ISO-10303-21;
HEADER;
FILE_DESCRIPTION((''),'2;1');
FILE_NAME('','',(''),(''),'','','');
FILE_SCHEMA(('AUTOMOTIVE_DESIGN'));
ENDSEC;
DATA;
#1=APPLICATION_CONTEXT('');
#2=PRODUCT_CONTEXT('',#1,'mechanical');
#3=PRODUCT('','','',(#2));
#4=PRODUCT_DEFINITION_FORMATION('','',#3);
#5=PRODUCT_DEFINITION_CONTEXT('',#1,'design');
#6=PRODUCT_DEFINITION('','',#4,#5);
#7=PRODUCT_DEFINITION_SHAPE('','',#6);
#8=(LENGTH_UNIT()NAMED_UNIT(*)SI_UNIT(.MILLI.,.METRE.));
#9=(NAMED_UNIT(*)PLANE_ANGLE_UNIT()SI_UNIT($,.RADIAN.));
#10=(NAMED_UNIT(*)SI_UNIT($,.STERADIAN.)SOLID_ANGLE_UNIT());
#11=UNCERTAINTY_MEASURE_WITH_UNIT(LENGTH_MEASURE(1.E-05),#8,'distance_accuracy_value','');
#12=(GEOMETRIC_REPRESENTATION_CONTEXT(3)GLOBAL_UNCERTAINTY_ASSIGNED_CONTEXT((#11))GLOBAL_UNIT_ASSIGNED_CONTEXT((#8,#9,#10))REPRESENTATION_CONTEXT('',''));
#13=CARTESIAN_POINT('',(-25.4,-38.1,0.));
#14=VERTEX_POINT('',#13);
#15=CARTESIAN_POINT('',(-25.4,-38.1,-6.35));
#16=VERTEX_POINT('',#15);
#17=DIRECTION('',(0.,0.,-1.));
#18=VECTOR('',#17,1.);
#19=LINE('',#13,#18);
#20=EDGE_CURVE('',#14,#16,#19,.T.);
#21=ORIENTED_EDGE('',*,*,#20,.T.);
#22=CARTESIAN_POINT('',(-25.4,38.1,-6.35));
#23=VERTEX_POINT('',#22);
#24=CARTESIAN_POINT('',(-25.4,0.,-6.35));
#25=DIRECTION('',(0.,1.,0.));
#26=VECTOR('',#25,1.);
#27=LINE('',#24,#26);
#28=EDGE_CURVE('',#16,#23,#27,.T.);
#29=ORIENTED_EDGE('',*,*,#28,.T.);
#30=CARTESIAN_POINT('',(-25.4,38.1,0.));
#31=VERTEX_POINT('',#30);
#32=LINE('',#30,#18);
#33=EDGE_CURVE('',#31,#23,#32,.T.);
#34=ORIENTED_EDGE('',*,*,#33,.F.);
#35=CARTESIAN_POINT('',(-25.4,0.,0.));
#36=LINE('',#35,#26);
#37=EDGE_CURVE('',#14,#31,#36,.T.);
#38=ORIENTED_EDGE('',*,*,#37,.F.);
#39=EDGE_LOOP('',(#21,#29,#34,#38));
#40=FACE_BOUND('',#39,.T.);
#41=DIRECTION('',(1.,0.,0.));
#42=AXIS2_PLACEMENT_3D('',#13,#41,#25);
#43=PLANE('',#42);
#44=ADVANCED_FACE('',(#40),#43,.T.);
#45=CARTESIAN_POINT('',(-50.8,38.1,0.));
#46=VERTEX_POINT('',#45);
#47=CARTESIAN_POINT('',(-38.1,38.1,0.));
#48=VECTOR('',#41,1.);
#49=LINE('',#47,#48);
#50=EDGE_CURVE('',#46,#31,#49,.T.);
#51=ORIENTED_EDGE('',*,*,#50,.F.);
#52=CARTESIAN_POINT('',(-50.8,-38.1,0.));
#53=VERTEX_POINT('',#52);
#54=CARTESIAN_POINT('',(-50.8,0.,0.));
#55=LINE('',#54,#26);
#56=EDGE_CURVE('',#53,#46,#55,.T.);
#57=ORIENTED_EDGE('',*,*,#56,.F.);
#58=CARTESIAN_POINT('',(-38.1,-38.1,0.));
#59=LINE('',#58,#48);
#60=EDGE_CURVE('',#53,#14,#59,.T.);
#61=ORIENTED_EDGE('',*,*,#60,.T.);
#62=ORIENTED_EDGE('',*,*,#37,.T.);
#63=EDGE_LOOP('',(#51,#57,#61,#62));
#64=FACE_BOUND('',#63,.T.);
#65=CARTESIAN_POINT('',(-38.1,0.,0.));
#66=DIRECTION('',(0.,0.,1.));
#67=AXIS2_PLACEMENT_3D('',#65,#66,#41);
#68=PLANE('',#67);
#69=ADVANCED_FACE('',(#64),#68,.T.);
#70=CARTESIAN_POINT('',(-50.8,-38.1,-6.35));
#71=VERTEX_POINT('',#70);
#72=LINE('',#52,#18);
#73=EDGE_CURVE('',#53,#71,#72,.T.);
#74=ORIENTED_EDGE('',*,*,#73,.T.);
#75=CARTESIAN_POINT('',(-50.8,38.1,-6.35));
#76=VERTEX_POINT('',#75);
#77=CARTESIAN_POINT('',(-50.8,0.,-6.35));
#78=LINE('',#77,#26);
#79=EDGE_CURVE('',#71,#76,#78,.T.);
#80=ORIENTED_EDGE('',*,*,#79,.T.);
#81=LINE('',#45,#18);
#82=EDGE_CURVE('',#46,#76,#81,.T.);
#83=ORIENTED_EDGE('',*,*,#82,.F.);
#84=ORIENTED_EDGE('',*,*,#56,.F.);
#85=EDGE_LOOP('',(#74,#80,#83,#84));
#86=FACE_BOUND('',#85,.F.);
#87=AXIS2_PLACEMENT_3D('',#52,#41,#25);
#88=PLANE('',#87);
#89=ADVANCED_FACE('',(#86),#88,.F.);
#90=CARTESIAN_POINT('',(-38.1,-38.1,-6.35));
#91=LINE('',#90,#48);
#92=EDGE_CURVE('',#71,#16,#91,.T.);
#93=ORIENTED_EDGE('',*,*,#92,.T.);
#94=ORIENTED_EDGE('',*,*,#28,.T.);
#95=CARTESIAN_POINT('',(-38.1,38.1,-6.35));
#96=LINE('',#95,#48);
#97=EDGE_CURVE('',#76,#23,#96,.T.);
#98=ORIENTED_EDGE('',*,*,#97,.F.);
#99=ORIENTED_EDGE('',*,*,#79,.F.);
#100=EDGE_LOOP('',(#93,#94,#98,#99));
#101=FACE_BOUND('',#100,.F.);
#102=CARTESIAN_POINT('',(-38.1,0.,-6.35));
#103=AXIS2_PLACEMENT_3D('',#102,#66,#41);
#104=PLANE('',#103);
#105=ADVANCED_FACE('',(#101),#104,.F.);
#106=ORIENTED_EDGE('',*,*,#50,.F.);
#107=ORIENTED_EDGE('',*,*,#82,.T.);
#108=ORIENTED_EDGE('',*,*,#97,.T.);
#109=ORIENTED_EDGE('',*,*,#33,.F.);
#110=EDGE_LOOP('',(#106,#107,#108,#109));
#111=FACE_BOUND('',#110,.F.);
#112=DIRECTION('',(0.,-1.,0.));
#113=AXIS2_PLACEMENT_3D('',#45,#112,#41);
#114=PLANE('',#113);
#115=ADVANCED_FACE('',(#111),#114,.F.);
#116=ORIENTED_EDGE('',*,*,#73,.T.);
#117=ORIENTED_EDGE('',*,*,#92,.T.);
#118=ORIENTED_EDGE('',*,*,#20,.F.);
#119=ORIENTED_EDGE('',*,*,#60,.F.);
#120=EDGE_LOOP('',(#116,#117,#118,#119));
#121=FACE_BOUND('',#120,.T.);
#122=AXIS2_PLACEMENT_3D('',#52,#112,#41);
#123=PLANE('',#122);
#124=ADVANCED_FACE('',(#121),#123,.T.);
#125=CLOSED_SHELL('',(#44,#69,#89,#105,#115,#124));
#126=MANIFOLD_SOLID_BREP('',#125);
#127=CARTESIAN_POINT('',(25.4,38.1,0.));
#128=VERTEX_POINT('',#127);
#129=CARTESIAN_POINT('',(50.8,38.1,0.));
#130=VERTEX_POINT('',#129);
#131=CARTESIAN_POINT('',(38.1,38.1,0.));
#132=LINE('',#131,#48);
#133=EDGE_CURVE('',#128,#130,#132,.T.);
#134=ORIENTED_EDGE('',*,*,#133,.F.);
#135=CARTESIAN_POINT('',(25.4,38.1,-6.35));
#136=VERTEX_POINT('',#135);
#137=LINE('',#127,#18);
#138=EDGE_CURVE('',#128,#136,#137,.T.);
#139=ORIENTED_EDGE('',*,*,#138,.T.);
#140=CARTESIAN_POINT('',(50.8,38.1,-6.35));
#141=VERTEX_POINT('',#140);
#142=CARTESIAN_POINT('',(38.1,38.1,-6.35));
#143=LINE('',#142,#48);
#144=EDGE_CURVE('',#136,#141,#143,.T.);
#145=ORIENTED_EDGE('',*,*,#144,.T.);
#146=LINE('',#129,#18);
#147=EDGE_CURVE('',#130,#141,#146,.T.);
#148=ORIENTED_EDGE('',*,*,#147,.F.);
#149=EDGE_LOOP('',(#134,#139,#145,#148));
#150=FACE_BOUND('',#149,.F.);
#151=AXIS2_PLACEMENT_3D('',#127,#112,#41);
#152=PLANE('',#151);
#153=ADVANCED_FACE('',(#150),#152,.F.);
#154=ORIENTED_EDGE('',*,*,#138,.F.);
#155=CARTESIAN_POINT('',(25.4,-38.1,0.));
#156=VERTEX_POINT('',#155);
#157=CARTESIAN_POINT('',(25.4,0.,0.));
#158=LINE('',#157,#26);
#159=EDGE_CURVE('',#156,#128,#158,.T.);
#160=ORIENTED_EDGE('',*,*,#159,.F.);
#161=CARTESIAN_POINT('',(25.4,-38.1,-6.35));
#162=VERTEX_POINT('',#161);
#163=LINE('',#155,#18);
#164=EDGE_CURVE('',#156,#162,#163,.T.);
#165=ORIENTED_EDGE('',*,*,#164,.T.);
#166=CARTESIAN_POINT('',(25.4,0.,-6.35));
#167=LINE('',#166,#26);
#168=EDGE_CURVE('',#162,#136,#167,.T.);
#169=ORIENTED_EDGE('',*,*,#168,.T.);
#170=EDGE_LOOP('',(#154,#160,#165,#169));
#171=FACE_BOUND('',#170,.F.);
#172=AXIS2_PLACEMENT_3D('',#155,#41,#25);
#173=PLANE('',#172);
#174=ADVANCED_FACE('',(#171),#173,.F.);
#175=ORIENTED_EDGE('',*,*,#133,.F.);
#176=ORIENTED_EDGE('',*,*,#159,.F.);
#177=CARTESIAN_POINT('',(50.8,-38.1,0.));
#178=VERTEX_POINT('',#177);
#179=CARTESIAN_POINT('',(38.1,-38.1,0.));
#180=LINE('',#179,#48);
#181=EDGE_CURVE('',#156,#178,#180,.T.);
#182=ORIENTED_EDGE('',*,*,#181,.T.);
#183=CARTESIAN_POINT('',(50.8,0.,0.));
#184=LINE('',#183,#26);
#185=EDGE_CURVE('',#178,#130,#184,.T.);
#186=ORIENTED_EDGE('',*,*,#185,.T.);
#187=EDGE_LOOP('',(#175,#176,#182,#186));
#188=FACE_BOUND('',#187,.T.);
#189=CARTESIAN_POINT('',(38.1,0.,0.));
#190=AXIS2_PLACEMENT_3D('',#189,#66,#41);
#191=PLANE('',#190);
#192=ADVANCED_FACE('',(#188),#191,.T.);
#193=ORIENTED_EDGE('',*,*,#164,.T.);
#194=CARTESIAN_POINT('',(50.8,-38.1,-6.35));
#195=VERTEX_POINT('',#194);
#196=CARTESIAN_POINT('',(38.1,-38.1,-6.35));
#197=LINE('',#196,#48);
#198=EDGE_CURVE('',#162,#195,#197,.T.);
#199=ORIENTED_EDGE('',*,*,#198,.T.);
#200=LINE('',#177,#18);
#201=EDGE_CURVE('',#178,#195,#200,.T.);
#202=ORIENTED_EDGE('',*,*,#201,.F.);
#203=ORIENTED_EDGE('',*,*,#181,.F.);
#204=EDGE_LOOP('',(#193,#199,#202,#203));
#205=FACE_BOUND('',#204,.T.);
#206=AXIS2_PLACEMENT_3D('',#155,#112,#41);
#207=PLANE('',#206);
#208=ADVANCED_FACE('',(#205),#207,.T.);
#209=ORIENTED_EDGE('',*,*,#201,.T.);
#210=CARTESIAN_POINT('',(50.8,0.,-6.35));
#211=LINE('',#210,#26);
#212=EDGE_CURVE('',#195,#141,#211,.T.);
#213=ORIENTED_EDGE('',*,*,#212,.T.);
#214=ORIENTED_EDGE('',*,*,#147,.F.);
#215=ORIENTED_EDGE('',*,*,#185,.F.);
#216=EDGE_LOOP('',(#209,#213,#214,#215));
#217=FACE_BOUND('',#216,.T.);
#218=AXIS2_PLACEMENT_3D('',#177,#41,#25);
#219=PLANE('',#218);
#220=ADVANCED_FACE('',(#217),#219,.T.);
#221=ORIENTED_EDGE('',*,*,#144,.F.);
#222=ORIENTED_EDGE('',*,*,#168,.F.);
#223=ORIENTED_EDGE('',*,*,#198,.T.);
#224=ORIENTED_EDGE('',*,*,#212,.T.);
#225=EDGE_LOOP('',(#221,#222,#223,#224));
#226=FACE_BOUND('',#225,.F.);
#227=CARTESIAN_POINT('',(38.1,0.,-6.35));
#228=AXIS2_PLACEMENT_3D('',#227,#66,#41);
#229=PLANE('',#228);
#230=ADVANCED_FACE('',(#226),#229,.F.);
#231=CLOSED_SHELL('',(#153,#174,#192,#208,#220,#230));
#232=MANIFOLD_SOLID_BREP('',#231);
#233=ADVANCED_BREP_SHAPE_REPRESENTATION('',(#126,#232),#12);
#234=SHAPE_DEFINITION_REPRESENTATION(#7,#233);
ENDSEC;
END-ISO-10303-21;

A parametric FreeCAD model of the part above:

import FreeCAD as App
import Part
import Sketcher
from FreeCAD import Vector
Q = App.Units.Quantity


def add_polygon(sketch, points):
    """Adds a closed chain of lines whose ends are joined by coincident constraints."""
    first, n = sketch.GeometryCount, len(points)
    for a, b in zip(points, points[1:] + points[:1]):
        sketch.addGeometry(Part.LineSegment(App.Vector(*a, 0), App.Vector(*b, 0)), False)
    for i in range(n):
        sketch.addConstraint(Sketcher.Constraint("Coincident", first + i, 2, first + (i + 1) % n, 1))

doc = App.newDocument("Part")
body = doc.addObject("PartDesign::Body", "Body")
body.AllowCompound = True

sketch1 = body.newObject("Sketcher::SketchObject", "Sketch")
sketch1.AttachmentSupport = (doc.getObject("XY_Plane"), [""])
sketch1.MapMode = "FlatFace"
add_polygon(sketch1, [(-51, 38), (-51, -38), (-25, -38), (-25, 38)])
add_polygon(sketch1, [(25, 38), (25, -38), (51, -38), (51, 38)])
sketch1.addConstraint(Sketcher.Constraint("Vertical", 0))
sketch1.addConstraint(Sketcher.Constraint("Horizontal", 1))
sketch1.addConstraint(Sketcher.Constraint("Vertical", 2))
sketch1.addConstraint(Sketcher.Constraint("Horizontal", 3))
sketch1.addConstraint(Sketcher.Constraint("Vertical", 4))
sketch1.addConstraint(Sketcher.Constraint("Horizontal", 5))
sketch1.addConstraint(Sketcher.Constraint("Vertical", 6))
sketch1.addConstraint(Sketcher.Constraint("Horizontal", 7))
sketch1.addConstraint(Sketcher.Constraint("Symmetric", 2, 2, 4, 2, -1, 1))
sketch1.addConstraint(Sketcher.Constraint("Symmetric", 0, 2, 6, 2, -1, 1))
sketch1.addConstraint(Sketcher.Constraint("Horizontal", 1, 2, 4, 2))
sketch1.addConstraint(Sketcher.Constraint("DistanceX", 1, 1, 1, 2, Q("1 in")))
sketch1.addConstraint(Sketcher.Constraint("DistanceY", 0, 2, 0, 1, Q("3 in")))
sketch1.addConstraint(Sketcher.Constraint("DistanceX", 0, 2, -1, 1, Q("2 in")))
pad1 = body.newObject("PartDesign::Pad", "Pad")
pad1.Profile = sketch1
pad1.Length = Q("0.25 in")
pad1.Reversed = True

doc.recompute()
